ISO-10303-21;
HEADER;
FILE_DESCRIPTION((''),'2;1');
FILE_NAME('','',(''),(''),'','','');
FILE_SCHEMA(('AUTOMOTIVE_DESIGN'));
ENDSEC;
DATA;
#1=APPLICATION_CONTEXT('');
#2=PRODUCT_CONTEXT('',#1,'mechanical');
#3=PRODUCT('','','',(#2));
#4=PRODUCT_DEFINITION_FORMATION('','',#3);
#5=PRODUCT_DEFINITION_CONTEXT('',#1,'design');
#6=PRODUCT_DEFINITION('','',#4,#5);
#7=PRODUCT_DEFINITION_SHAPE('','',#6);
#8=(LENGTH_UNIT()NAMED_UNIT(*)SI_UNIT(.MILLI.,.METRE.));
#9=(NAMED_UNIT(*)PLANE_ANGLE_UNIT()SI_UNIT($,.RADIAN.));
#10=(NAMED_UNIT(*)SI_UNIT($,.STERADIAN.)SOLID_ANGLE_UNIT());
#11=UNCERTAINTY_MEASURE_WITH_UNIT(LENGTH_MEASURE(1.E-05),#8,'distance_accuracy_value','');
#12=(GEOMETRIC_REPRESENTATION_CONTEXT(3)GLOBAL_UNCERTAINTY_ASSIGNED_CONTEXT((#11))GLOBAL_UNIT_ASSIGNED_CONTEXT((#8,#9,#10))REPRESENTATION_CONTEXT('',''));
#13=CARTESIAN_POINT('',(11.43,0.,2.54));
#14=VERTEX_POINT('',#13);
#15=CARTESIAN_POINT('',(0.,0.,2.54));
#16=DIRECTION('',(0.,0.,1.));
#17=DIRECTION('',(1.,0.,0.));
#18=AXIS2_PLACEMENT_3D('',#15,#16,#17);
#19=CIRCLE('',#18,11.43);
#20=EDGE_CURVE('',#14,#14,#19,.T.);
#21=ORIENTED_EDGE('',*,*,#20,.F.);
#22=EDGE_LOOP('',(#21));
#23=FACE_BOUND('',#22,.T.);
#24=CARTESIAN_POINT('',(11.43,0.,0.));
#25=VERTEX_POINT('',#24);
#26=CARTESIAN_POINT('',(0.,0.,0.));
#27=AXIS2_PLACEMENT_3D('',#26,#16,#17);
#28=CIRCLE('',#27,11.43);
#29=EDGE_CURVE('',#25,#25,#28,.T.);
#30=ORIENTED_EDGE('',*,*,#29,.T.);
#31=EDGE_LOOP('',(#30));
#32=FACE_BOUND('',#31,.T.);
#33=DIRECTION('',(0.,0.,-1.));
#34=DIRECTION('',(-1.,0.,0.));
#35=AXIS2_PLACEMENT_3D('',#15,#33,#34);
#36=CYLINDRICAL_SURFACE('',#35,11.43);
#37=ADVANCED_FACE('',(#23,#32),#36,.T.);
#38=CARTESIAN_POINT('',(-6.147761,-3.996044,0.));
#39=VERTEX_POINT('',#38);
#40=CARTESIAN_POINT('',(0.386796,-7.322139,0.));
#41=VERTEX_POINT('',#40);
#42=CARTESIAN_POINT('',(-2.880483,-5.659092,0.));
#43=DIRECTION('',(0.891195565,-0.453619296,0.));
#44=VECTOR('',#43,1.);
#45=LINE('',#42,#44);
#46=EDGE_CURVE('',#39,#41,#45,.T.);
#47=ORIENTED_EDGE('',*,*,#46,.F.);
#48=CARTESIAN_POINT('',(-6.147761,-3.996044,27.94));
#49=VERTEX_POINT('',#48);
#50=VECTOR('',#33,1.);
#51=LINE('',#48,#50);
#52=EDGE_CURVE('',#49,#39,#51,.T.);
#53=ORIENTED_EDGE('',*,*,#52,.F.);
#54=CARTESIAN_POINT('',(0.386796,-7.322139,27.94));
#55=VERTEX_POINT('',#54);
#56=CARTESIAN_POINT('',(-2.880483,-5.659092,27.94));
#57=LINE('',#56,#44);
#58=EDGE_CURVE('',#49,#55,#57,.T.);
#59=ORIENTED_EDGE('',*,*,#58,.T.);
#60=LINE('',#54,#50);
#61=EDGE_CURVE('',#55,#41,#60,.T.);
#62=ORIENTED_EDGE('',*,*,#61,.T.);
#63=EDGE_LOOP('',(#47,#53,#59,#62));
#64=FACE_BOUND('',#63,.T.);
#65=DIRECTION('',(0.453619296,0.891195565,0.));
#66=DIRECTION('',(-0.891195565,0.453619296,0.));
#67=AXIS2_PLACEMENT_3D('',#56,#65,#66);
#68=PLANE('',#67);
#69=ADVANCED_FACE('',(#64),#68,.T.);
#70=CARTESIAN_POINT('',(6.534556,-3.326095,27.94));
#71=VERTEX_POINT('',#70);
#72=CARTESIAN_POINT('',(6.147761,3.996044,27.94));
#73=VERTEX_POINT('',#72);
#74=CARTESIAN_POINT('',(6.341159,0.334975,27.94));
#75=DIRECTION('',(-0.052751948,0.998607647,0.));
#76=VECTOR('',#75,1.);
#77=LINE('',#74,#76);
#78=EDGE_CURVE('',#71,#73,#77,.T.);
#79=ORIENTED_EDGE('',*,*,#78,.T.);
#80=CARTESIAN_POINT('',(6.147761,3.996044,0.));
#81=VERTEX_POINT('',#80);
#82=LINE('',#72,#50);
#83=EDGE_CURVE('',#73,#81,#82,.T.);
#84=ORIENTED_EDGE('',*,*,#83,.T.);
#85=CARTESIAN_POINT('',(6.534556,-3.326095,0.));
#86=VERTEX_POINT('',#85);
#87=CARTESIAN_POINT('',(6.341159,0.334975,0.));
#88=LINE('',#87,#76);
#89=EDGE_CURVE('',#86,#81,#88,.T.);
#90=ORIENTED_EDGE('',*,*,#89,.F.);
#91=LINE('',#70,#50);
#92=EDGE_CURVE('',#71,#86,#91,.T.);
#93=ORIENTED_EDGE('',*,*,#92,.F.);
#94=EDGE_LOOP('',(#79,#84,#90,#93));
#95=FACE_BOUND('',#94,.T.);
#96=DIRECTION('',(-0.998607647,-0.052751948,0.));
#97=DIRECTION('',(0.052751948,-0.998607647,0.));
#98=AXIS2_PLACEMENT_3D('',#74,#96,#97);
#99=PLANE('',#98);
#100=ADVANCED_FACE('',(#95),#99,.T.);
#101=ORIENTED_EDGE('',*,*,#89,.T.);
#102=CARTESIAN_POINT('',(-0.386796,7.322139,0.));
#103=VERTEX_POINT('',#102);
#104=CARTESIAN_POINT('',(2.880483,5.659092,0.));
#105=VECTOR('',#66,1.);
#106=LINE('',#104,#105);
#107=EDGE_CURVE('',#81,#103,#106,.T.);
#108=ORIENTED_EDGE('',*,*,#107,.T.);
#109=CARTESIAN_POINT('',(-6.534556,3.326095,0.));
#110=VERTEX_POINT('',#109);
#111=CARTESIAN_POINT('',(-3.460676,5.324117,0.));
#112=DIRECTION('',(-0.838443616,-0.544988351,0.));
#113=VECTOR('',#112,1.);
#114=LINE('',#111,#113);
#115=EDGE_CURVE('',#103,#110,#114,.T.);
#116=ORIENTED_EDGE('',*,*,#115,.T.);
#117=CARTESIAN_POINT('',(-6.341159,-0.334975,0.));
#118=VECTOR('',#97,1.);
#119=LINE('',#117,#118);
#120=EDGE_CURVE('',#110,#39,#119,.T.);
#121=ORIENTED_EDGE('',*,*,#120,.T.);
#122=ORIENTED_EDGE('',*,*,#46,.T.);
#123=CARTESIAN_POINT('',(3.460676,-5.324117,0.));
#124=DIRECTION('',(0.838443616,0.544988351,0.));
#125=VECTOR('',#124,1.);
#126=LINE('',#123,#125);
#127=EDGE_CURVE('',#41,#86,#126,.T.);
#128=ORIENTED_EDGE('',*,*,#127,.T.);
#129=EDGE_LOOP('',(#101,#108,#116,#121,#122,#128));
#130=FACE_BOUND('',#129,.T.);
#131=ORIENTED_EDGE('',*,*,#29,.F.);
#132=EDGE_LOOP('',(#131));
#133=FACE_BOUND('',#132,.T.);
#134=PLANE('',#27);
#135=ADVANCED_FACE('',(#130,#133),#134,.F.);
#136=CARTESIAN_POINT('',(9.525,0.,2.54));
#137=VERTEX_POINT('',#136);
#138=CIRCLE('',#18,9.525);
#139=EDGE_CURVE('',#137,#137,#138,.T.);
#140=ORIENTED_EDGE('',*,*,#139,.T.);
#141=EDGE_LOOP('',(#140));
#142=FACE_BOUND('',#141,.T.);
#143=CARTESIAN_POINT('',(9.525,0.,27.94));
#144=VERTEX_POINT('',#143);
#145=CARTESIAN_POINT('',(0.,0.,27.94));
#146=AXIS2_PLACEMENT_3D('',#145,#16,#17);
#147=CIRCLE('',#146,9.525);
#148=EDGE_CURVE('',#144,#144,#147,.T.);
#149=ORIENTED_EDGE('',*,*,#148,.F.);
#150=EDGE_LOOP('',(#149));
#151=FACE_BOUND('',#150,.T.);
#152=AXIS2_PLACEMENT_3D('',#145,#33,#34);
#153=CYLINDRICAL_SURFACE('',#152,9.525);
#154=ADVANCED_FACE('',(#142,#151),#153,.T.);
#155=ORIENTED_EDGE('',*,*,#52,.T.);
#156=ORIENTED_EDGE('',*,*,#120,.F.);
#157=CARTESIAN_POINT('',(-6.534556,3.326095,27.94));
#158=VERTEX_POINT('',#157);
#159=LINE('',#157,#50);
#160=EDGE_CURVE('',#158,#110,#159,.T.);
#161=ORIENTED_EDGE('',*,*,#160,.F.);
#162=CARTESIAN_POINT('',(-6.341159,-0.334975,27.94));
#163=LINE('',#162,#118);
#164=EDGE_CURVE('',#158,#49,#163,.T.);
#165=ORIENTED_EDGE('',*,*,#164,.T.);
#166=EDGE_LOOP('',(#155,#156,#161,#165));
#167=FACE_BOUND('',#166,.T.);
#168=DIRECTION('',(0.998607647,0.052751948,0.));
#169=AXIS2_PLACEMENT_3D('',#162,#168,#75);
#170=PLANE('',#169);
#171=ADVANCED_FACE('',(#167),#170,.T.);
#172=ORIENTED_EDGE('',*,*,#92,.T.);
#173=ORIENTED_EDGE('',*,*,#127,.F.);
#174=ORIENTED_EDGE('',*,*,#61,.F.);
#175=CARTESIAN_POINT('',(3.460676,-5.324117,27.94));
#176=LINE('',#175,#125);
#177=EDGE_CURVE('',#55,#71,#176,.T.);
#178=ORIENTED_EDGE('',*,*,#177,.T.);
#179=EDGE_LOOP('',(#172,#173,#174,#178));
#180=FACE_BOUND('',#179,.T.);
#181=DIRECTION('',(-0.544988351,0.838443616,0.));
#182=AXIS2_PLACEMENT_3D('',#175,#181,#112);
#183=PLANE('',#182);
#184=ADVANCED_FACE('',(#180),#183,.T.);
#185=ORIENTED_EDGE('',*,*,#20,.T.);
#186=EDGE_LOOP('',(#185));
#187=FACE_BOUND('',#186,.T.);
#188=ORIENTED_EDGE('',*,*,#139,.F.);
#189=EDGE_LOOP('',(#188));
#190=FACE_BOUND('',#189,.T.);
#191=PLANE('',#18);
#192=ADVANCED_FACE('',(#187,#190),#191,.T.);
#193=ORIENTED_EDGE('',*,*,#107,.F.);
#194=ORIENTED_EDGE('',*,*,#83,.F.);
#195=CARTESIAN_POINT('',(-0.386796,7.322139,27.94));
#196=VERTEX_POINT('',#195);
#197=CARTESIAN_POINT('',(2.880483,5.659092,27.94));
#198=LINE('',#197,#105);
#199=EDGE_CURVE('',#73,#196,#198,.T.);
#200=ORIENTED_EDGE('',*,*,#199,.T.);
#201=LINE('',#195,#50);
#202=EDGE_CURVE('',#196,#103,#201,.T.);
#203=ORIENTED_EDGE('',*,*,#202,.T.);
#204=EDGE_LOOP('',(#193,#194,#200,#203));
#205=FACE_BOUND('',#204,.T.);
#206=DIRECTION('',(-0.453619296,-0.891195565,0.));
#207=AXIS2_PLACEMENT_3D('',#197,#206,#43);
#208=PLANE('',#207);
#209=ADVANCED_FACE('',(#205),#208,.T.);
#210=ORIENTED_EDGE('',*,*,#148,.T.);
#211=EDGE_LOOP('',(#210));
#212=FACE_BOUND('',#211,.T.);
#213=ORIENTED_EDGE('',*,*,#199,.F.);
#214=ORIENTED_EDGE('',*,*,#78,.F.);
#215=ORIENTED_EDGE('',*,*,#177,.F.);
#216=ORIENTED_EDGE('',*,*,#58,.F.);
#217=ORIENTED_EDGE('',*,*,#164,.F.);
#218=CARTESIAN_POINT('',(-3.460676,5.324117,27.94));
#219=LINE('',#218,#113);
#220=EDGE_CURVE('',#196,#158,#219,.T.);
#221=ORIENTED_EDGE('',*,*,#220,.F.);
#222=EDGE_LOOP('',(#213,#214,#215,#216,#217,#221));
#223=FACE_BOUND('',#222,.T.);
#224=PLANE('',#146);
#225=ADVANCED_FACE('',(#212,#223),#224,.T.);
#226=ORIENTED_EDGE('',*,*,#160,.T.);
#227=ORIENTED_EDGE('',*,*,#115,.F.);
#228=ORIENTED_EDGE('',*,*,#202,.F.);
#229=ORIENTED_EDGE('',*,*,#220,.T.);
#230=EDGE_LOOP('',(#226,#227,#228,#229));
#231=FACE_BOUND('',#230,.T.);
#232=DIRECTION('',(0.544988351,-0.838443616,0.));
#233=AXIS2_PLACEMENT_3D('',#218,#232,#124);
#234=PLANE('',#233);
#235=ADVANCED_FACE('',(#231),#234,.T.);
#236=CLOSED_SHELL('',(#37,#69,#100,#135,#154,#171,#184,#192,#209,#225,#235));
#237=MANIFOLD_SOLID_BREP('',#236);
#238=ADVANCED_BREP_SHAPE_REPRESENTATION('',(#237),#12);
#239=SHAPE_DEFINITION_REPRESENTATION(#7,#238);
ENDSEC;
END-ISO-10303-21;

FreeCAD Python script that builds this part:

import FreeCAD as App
import Part
import Sketcher
from FreeCAD import Vector
Q = App.Units.Quantity


def add_polygon(sketch, points):
    """Adds a closed chain of lines whose ends are joined by coincident constraints."""
    first, n = sketch.GeometryCount, len(points)
    for a, b in zip(points, points[1:] + points[:1]):
        sketch.addGeometry(Part.LineSegment(App.Vector(*a, 0), App.Vector(*b, 0)), False)
    for i in range(n):
        sketch.addConstraint(Sketcher.Constraint("Coincident", first + i, 2, first + (i + 1) % n, 1))

doc = App.newDocument("Part")
body = doc.addObject("PartDesign::Body", "Body")

# Sketch on XY plane
sketch1 = doc.addObject("Sketcher::SketchObject", "Sketch")
body.addObject(sketch1)
sketch1.AttachmentSupport = (doc.XY_Plane, [""])
sketch1.MapMode = "FlatFace"
sketch1.addGeometry(Part.Circle(Vector(0, 0, 0), Vector(0, 0, 1), 9.525), False)  # 0
add_polygon(sketch1, [(6.147761, 3.996044), (6.534556, -3.326095), (0.386796, -7.322139), (-6.147761, -3.996044), (-6.534556, 3.326095), (-0.386796, 7.322139)])  # lines 1-6
sketch1.addConstraint([
    Sketcher.Constraint("Coincident", 0, 3, -1, 1),
    Sketcher.Constraint("Symmetric", 1, 2, 4, 2, -1, 1),
    Sketcher.Constraint("Symmetric", 2, 2, 5, 2, -1, 1),
    Sketcher.Constraint("Symmetric", 3, 2, 6, 2, -1, 1),
    Sketcher.Constraint("Equal", 1, 2),
    Sketcher.Constraint("Equal", 2, 3),
    Sketcher.Constraint("Diameter", 0, Q("0.75 in")),
    Sketcher.Constraint("Distance", 1, 7.332348),
    Sketcher.Constraint("DistanceY", 2, 2, -1, 1, 7.322139),
    Sketcher.Constraint("DistanceX", 3, 2, -1, 1, 6.147761),
    Sketcher.Constraint("DistanceX", 2, 2, 1, 2, 6.147761),
])
pad1 = doc.addObject("PartDesign::Pad", "Pad")
body.addObject(pad1)
pad1.Profile = sketch1
pad1.Length = Q("1.1 in")

# Sketch on XY plane
sketch2 = doc.addObject("Sketcher::SketchObject", "Sketch001")
body.addObject(sketch2)
sketch2.AttachmentSupport = (doc.XY_Plane, [""])
sketch2.MapMode = "FlatFace"
sketch2.addGeometry([
    Part.Circle(Vector(0, 0, 0), Vector(0, 0, 1), 11.43),
    Part.Circle(Vector(0, 0, 0), Vector(0, 0, 1), 9.525),
], False)
sketch2.addConstraint([
    Sketcher.Constraint("Coincident", 0, 3, -1, 1),
    Sketcher.Constraint("Coincident", 1, 3, -1, 1),
    Sketcher.Constraint("Diameter", 0, Q("0.9 in")),
    Sketcher.Constraint("Diameter", 1, Q("0.75 in")),
])
pad2 = doc.addObject("PartDesign::Pad", "Pad001")
body.addObject(pad2)
pad2.Profile = sketch2
pad2.Length = Q("0.1 in")

doc.recompute()
